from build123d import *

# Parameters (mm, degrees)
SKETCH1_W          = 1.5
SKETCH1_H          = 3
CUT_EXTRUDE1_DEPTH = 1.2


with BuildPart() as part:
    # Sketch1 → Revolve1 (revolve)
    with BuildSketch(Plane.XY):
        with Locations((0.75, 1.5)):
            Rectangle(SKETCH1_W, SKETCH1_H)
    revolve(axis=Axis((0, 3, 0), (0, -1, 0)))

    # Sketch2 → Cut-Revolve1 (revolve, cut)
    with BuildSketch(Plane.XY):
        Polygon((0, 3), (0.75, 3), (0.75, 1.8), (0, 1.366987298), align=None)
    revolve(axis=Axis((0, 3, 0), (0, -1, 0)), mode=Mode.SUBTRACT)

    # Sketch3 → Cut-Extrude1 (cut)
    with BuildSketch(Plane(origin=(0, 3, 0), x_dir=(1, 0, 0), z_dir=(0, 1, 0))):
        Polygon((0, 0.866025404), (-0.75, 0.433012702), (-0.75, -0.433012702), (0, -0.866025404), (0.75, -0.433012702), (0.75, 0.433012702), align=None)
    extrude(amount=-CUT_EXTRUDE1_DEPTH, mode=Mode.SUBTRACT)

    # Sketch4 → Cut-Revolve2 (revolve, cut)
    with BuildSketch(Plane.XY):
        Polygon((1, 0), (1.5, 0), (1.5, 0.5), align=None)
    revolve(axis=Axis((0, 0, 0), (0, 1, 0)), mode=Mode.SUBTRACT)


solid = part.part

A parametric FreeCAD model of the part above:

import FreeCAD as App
import Part
import Sketcher
Q = App.Units.Quantity


def add_polygon(sketch, points):
    """Adds a closed chain of lines whose ends are joined by coincident constraints."""
    first, n = sketch.GeometryCount, len(points)
    for a, b in zip(points, points[1:] + points[:1]):
        sketch.addGeometry(Part.LineSegment(App.Vector(*a, 0), App.Vector(*b, 0)), False)
    for i in range(n):
        sketch.addConstraint(Sketcher.Constraint("Coincident", first + i, 2, first + (i + 1) % n, 1))

doc = App.newDocument("Part")
body = doc.addObject("PartDesign::Body", "Body")

sketch1 = body.newObject("Sketcher::SketchObject", "Sketch")
sketch1.AttachmentSupport = (doc.getObject("XY_Plane"), [""])
sketch1.MapMode = "FlatFace"
add_polygon(sketch1, [(0, 3), (0, 0), (1.5, 0), (1.5, 3)])
sketch1.addConstraint([
    Sketcher.Constraint("Vertical", 0),
    Sketcher.Constraint("Horizontal", 1),
    Sketcher.Constraint("Vertical", 2),
    Sketcher.Constraint("Horizontal", 3),
    Sketcher.Constraint("Coincident", 0, 2, -1, 1),
    Sketcher.Constraint("DistanceY", 0, 2, 0, 1, 3.0),
    Sketcher.Constraint("DistanceX", 1, 1, 1, 2, 1.5),
])
revolution = body.newObject("PartDesign::Revolution", "Revolution")
revolution.Profile = sketch1
revolution.ReferenceAxis = (sketch1, ["V_Axis"])
revolution.Angle = 360

sketch2 = body.newObject("Sketcher::SketchObject", "Sketch001")
sketch2.AttachmentSupport = (doc.getObject("XY_Plane"), [""])
sketch2.MapMode = "FlatFace"
add_polygon(sketch2, [(0.8, 3), (0, 3), (0, 1.4), (0.8, 1.8)])
sketch2.addConstraint([
    Sketcher.Constraint("Horizontal", 0),
    Sketcher.Constraint("Vertical", 1),
    Sketcher.Constraint("Vertical", 3),
    Sketcher.Constraint("PointOnObject", 0, 2, -2),
    Sketcher.Constraint("Angle", 2, Q("30 deg")),
    Sketcher.Constraint("DistanceY", 3, 1, 3, 2, 1.2),
    Sketcher.Constraint("DistanceY", -1, 1, 0, 2, 3.0),
    Sketcher.Constraint("DistanceX", 0, 2, 0, 1, 0.75),
])
groove = body.newObject("PartDesign::Groove", "Groove")
groove.Profile = sketch2
groove.ReferenceAxis = (sketch2, ["V_Axis"])
groove.Angle = 360

sketch3 = body.newObject("Sketcher::SketchObject", "Sketch002")
sketch3.AttachmentSupport = (doc.getObject("XZ_Plane"), [""])
sketch3.MapMode = "FlatFace"
sketch3.AttachmentOffset = App.Placement(App.Vector(0, 0, -3), App.Rotation())
add_polygon(sketch3, [(0, -0.9), (-0.8, -0.4), (-0.8, 0.4), (0, 0.9), (0.8, 0.4), (0.8, -0.4)])
sketch3.addConstraint([
    Sketcher.Constraint("Vertical", 1),
    Sketcher.Constraint("Vertical", 4),
    Sketcher.Constraint("Symmetric", 0, 2, 3, 2, -1, 1),
    Sketcher.Constraint("Symmetric", 2, 2, 5, 2, -1, 1),
    Sketcher.Constraint("PointOnObject", 2, 2, -2),
    Sketcher.Constraint("Parallel", 2, 5),
    Sketcher.Constraint("Horizontal", 1, 2, 3, 2),
    Sketcher.Constraint("Angle", 0, Q("150 deg")),
    Sketcher.Constraint("DistanceX", 1, 2, 3, 2, 1.5),
    Sketcher.Constraint("DistanceY", 1, 1, 1, 2, 0.866025),
])
pocket1 = body.newObject("PartDesign::Pocket", "Pocket")
pocket1.Profile = sketch3
pocket1.Length = 1.2
pocket1.Reversed = True

sketch4 = body.newObject("Sketcher::SketchObject", "Sketch003")
sketch4.AttachmentSupport = (doc.getObject("XY_Plane"), [""])
sketch4.MapMode = "FlatFace"
add_polygon(sketch4, [(1, 0), (1.5, 0), (1.5, 0.5)])
sketch4.addConstraint([
    Sketcher.Constraint("Horizontal", 0),
    Sketcher.Constraint("Vertical", 1),
    Sketcher.Constraint("PointOnObject", 0, 2, -1),
    Sketcher.Constraint("Equal", 0, 1),
    Sketcher.Constraint("DistanceX", 0, 1, 0, 2, 0.5),
    Sketcher.Constraint("DistanceX", -1, 1, 2, 2, 1.0),
])
groove2 = body.newObject("PartDesign::Groove", "Groove001")
groove2.Profile = sketch4
groove2.ReferenceAxis = (sketch4, ["V_Axis"])
groove2.Angle = 360

doc.recompute()
